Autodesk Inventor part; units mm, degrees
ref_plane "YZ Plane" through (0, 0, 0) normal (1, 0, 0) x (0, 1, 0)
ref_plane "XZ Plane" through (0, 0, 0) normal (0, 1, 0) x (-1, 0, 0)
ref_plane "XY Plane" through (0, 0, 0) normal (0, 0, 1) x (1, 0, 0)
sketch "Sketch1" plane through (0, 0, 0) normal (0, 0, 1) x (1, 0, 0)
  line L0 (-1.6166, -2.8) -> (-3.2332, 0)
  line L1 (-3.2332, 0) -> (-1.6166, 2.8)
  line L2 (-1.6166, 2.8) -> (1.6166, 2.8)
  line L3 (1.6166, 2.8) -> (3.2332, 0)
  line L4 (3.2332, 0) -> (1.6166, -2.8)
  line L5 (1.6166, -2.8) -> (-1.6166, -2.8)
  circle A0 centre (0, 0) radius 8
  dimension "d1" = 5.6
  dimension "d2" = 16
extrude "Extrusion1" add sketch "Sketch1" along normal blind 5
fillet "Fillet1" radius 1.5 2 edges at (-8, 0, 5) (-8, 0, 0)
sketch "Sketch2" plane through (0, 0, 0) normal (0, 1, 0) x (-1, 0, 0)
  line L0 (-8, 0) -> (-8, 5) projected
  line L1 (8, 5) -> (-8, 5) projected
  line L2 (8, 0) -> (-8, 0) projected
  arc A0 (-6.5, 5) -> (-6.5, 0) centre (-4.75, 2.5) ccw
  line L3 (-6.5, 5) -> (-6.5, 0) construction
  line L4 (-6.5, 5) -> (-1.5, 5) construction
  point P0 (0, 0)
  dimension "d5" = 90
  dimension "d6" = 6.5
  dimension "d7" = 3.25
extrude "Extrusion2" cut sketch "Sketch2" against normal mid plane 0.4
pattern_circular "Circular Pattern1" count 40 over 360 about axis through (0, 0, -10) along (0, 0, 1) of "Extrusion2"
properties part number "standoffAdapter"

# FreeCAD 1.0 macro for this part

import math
import FreeCAD as App
import Part
import Sketcher

V = App.Vector
Q = App.Units.Quantity


def edges_at(feature, points):
    """Names of the edges that pass closest to the given points."""
    edges = feature.Shape.Edges
    near = lambda p: min(range(len(edges)), key=lambda i: edges[i].distToShape(Part.Vertex(*p))[0])
    return sorted({f"Edge{near(p) + 1}" for p in points})


def add_polygon(sketch, points):
    """Adds a closed chain of lines whose ends are joined by coincident constraints."""
    first, n = sketch.GeometryCount, len(points)
    for a, b in zip(points, points[1:] + points[:1]):
        sketch.addGeometry(Part.LineSegment(App.Vector(*a, 0), App.Vector(*b, 0)), False)
    for i in range(n):
        sketch.addConstraint(Sketcher.Constraint("Coincident", first + i, 2, first + (i + 1) % n, 1))

doc = App.newDocument("Part")
body = doc.addObject("PartDesign::Body", "Body")

# Sketch on XY plane
sketch1 = body.newObject("Sketcher::SketchObject", "Sketch")
sketch1.AttachmentSupport = (doc.getObject("XY_Plane"), [""])
sketch1.MapMode = "FlatFace"
sketch1.addGeometry(Part.Circle(V(0, 0, 0), V(0, 0, 1), 8), False)  # 0
add_polygon(sketch1, [(1.6, -2.8), (-1.6, -2.8), (-3.2, 0), (-1.6, 2.8), (1.6, 2.8), (3.2, 0)])  # lines 1-6
sketch1.addConstraint(Sketcher.Constraint("Horizontal", 1))
sketch1.addConstraint(Sketcher.Constraint("Horizontal", 4))
sketch1.addConstraint(Sketcher.Constraint("Coincident", 0, 3, -1, 1))
sketch1.addConstraint(Sketcher.Constraint("Symmetric", 1, 2, 4, 2, -1, 1))
sketch1.addConstraint(Sketcher.Constraint("Symmetric", 2, 2, 5, 2, -1, 1))
sketch1.addConstraint(Sketcher.Constraint("PointOnObject", 2, 2, -1))
sketch1.addConstraint(Sketcher.Constraint("Parallel", 3, 6))
sketch1.addConstraint(Sketcher.Constraint("Vertical", 1, 2, 3, 2))
sketch1.addConstraint(Sketcher.Constraint("Diameter", 0, 16.0))
sketch1.addConstraint(Sketcher.Constraint("DistanceY", 1, 2, 3, 2, 5.6))
sketch1.addConstraint(Sketcher.Constraint("Angle", 2, Q("120.0003 deg")))
sketch1.addConstraint(Sketcher.Constraint("DistanceX", 1, 2, 1, 1, 3.2332))
pad1 = body.newObject("PartDesign::Pad", "Pad")
pad1.Profile = sketch1
pad1.Length = 5
doc.recompute()

fillet = body.newObject("PartDesign::Fillet", "Fillet")
fillet.Base = (pad1, edges_at(pad1, [(-8, 0, 5), (-8, 0, 0)]))
fillet.Radius = 1.5

# Sketch on XZ plane
sketch2 = body.newObject("Sketcher::SketchObject", "Sketch001")
sketch2.AttachmentSupport = (doc.getObject("XZ_Plane"), [""])
sketch2.MapMode = "FlatFace"
sketch2.addGeometry(Part.LineSegment(V(8, 5, 0), V(8, 0, 0)), False)
sketch2.addGeometry(Part.LineSegment(V(8, 0, 0), V(6.5, 0, 0)), False)
sketch2.addGeometry(Part.ArcOfCircle(Part.Circle(V(4.8, 2.5, 0), V(0, 0, 1), 3.1), math.radians(-55), math.radians(55)), False)
sketch2.addGeometry(Part.LineSegment(V(6.5, 5, 0), V(8, 5, 0)), False)
sketch2.addConstraint(Sketcher.Constraint("Coincident", 0, 2, 1, 1))
sketch2.addConstraint(Sketcher.Constraint("Coincident", 1, 2, 2, 1))
sketch2.addConstraint(Sketcher.Constraint("Coincident", 2, 2, 3, 1))
sketch2.addConstraint(Sketcher.Constraint("Coincident", 3, 2, 0, 1))
sketch2.addConstraint(Sketcher.Constraint("Vertical", 0))
sketch2.addConstraint(Sketcher.Constraint("Horizontal", 1))
sketch2.addConstraint(Sketcher.Constraint("Horizontal", 3))
sketch2.addConstraint(Sketcher.Constraint("PointOnObject", 0, 2, -1))
sketch2.addConstraint(Sketcher.Constraint("Vertical", 1, 2, 2, 2))
sketch2.addConstraint(Sketcher.Constraint("DistanceX", -1, 1, 1, 2, 6.5))
sketch2.addConstraint(Sketcher.Constraint("DistanceY", 0, 2, 0, 1, 5.0))
sketch2.addConstraint(Sketcher.Constraint("DistanceX", 2, 3, 0, 2, 3.25))
sketch2.addConstraint(Sketcher.Constraint("DistanceX", 1, 2, 1, 1, 1.5))
pocket1 = body.newObject("PartDesign::Pocket", "Pocket")
pocket1.Profile = sketch2
pocket1.Length = 0.4
pocket1.Midplane = True
doc.recompute()

polarpattern = body.newObject("PartDesign::PolarPattern", "PolarPattern")
polarpattern.Originals = [pocket1]
polarpattern.Axis = (doc.getObject("Z_Axis"), [""])
polarpattern.Angle = 360
polarpattern.Occurrences = 40
body.Tip = polarpattern

doc.recompute()
